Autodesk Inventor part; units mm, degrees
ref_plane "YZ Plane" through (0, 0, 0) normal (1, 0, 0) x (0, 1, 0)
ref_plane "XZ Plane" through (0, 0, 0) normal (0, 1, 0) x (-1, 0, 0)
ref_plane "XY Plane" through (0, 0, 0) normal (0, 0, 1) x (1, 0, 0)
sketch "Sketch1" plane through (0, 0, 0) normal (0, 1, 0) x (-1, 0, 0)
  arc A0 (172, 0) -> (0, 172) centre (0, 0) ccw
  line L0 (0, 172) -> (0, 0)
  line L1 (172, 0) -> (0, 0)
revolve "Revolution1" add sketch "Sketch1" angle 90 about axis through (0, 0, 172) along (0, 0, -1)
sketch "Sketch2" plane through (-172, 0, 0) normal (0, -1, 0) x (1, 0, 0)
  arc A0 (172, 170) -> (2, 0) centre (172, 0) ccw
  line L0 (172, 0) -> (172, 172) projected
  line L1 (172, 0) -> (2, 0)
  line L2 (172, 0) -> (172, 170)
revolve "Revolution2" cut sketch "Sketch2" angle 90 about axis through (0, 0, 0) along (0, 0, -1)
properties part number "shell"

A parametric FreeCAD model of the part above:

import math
import FreeCAD as App
import Part
import Sketcher

V = App.Vector

doc = App.newDocument("Part")
params = doc.addObject("Spreadsheet::Sheet", "Params")
for row, (alias, value) in enumerate([
    ("sketch1_radius", "172 mm"),
    ("revolution_angle", "90 deg"),
    ("sketch2_radius", "170 mm"),
    ("groove_angle", "90 deg"),
], start=1):
    params.set(f"A{row}", alias)
    params.set(f"B{row}", "=" + value)
    params.setAlias(f"B{row}", alias)

body = doc.addObject("PartDesign::Body", "Body")

# Sketch on XZ plane
sketch1 = body.newObject("Sketcher::SketchObject", "Sketch")
sketch1.AttachmentSupport = (doc.getObject("XZ_Plane"), [""])
sketch1.MapMode = "FlatFace"
sketch1.addGeometry(Part.LineSegment(V(0, 0, 0), V(-172, 0, 0)), False)
sketch1.addGeometry(Part.ArcOfCircle(Part.Circle(V(0, 0, 0), V(0, 0, 1), 172), math.radians(90), math.radians(180)), False)
sketch1.addGeometry(Part.LineSegment(V(0, 172, 0), V(0, 0, 0)), False)
sketch1.addConstraint(Sketcher.Constraint("Coincident", 0, 2, 1, 2))
sketch1.addConstraint(Sketcher.Constraint("Coincident", 1, 1, 2, 1))
sketch1.addConstraint(Sketcher.Constraint("Coincident", 2, 2, 0, 1))
sketch1.addConstraint(Sketcher.Constraint("Horizontal", 0))
sketch1.addConstraint(Sketcher.Constraint("Vertical", 2))
sketch1.addConstraint(Sketcher.Constraint("Coincident", 1, 3, -1, 1))
sketch1.addConstraint(Sketcher.Constraint("Coincident", 2, 2, -1, 1))
sketch1.addConstraint(Sketcher.Constraint("Radius", 1, 172.0))
sketch1.setExpression("Constraints[7]", "Params.sketch1_radius")
revolution = body.newObject("PartDesign::Revolution", "Revolution")
revolution.Profile = sketch1
revolution.ReferenceAxis = (sketch1, ["V_Axis"])
revolution.setExpression("Angle", "Params.revolution_angle")
revolution.Reversed = True

# Sketch on XZ plane
sketch2 = body.newObject("Sketcher::SketchObject", "Sketch001")
sketch2.AttachmentSupport = (doc.getObject("XZ_Plane"), [""])
sketch2.MapMode = "FlatFace"
sketch2.addGeometry(Part.LineSegment(V(0, 0, 0), V(0, 170, 0)), False)
sketch2.addGeometry(Part.ArcOfCircle(Part.Circle(V(0, 0, 0), V(0, 0, 1), 170), math.radians(90), math.radians(180)), False)
sketch2.addGeometry(Part.LineSegment(V(-170, 0, 0), V(0, 0, 0)), False)
sketch2.addConstraint(Sketcher.Constraint("Coincident", 0, 2, 1, 1))
sketch2.addConstraint(Sketcher.Constraint("Coincident", 1, 2, 2, 1))
sketch2.addConstraint(Sketcher.Constraint("Coincident", 2, 2, 0, 1))
sketch2.addConstraint(Sketcher.Constraint("Vertical", 0))
sketch2.addConstraint(Sketcher.Constraint("Horizontal", 2))
sketch2.addConstraint(Sketcher.Constraint("Coincident", 1, 3, -1, 1))
sketch2.addConstraint(Sketcher.Constraint("Coincident", 2, 2, -1, 1))
sketch2.addConstraint(Sketcher.Constraint("Radius", 1, 170.0))
sketch2.setExpression("Constraints[7]", "Params.sketch2_radius")
groove = body.newObject("PartDesign::Groove", "Groove")
groove.Profile = sketch2
groove.ReferenceAxis = (sketch2, ["V_Axis"])
groove.setExpression("Angle", "Params.groove_angle")
groove.Reversed = True

doc.recompute()
